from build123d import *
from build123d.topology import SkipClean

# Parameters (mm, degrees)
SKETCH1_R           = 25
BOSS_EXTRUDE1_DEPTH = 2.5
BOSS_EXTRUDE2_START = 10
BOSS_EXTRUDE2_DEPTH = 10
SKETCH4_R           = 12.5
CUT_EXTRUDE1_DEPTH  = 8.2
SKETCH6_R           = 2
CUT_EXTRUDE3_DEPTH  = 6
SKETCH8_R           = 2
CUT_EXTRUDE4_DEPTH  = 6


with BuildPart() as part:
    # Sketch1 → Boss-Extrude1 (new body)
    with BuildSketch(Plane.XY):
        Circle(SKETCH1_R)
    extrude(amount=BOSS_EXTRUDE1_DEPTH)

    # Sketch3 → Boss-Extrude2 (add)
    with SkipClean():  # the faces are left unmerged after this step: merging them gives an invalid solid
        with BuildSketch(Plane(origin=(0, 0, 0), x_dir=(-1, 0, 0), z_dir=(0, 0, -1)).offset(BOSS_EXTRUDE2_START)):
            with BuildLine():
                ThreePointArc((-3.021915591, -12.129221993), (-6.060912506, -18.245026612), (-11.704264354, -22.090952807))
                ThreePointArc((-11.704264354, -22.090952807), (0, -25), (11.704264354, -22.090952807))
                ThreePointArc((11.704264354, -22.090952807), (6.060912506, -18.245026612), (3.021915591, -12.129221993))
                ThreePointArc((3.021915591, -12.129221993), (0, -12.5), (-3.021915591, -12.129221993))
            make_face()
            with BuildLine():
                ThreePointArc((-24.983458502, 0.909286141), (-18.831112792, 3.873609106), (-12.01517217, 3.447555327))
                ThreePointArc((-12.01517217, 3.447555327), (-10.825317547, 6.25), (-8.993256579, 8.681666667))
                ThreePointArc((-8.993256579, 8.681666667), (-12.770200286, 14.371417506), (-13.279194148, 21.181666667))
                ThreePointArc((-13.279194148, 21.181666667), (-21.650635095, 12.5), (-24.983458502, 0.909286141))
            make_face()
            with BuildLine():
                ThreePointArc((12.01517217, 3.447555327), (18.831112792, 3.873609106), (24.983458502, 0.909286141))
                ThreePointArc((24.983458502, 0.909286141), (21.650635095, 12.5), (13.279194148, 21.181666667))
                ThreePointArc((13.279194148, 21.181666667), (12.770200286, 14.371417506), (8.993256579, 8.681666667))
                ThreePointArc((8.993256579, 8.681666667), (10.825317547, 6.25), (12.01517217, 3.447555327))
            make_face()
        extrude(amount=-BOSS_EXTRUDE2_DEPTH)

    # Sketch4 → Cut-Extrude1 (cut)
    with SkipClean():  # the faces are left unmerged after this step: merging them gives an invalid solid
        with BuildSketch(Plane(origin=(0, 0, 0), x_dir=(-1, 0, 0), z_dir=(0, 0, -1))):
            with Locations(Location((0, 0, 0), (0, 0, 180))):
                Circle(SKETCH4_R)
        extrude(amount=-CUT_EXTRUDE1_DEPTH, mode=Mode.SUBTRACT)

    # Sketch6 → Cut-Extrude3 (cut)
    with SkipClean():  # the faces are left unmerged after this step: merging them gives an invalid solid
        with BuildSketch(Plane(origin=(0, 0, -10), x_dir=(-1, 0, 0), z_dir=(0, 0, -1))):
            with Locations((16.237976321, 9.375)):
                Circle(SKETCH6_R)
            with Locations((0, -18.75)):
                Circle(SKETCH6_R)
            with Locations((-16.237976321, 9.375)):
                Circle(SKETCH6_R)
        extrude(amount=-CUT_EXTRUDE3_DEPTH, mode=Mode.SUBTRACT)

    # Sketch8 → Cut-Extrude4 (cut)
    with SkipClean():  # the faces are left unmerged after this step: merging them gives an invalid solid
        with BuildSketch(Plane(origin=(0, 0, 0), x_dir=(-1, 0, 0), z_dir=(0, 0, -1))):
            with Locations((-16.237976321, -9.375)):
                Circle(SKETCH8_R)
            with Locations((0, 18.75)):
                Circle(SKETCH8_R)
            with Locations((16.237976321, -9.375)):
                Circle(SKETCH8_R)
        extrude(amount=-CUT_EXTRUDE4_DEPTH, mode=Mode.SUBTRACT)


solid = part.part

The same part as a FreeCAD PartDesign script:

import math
import FreeCAD as App
import Part
import Sketcher
from FreeCAD import Vector
Q = App.Units.Quantity

doc = App.newDocument("Part")
params = doc.addObject("Spreadsheet::Sheet", "Params")
for row, (alias, value) in enumerate([
    ("sketch1_diameter", "50 mm"),
    ("pad1_length", "2.5 mm"),
    ("sketch2_radius", "25 mm"),
    ("sketch2_radius2", "13.5 mm"),
    ("sketch2_radius3", "12.5 mm"),
    ("pad2_length", "10 mm"),
    ("sketch3_diameter", "25 mm"),
    ("pocket1_length", "8.2 mm"),
    ("sketch4_diameter", "4 mm"),
    ("pocket2_length", "6 mm"),
    ("sketch5_diameter", "4 mm"),
    ("pocket3_length", "6 mm"),
], start=1):
    params.set(f"A{row}", alias)
    params.set(f"B{row}", "=" + value)
    params.setAlias(f"B{row}", alias)

body = doc.addObject("PartDesign::Body", "Body")

# Sketch on XY plane
sketch1 = body.newObject("Sketcher::SketchObject", "Sketch")
sketch1.AttachmentSupport = (doc.getObject("XY_Plane"), [""])
sketch1.MapMode = "FlatFace"
sketch1.addGeometry(Part.Circle(Vector(0, 0, 0), Vector(0, 0, 1), 25), False)
sketch1.addConstraint([
    Sketcher.Constraint("Coincident", 0, 3, -1, 1),
    Sketcher.Constraint("Diameter", 0, Q("50 mm")),
])
sketch1.setExpression("Constraints[1]", "Params.sketch1_diameter")
pad1 = body.newObject("PartDesign::Pad", "Pad")
pad1.Profile = sketch1
pad1.setExpression("Length", "Params.pad1_length")

# Sketch on XY plane
sketch2 = body.newObject("Sketcher::SketchObject", "Sketch001")
sketch2.AttachmentSupport = (doc.getObject("XY_Plane"), [""])
sketch2.MapMode = "FlatFace"
sketch2.AttachmentOffset = App.Placement(Vector(0, 0, -10), App.Rotation())
sketch2.addGeometry([
    Part.ArcOfCircle(Part.Circle(Vector(16, -9, 0), Vector(0, 0, 1), 14), math.radians(-168), math.radians(-110)),  # 0
    Part.ArcOfCircle(Part.Circle(Vector(0, 0, 0), Vector(0, 0, 1), 25), math.radians(-118), math.radians(-62)),  # 1
    Part.ArcOfCircle(Part.Circle(Vector(-16, -9, 0), Vector(0, 0, 1), 14), math.radians(-70), math.radians(-12)),  # 2
    Part.ArcOfCircle(Part.Circle(Vector(0, 0, 0), Vector(0, 0, 1), 12), math.radians(-104), math.radians(-76)),  # 3
    Part.ArcOfCircle(Part.Circle(Vector(16, -9, 0), Vector(0, 0, 1), 14), math.radians(50), math.radians(108)),  # 4
    Part.ArcOfCircle(Part.Circle(Vector(0, 0, 0), Vector(0, 0, 1), 13), math.radians(16), math.radians(44)),  # 5
    Part.ArcOfCircle(Part.Circle(Vector(0, 19, 0), Vector(0, 0, 1), 14), math.radians(-48), math.radians(10)),  # 6
    Part.ArcOfCircle(Part.Circle(Vector(0, 0, 0), Vector(0, 0, 1), 25), math.radians(2), math.radians(58)),  # 7
    Part.ArcOfCircle(Part.Circle(Vector(-16, -9, 0), Vector(0, 0, 1), 14), math.radians(72), math.radians(130)),  # 8
    Part.ArcOfCircle(Part.Circle(Vector(0, 0, 0), Vector(0, 0, 1), 25), math.radians(122), math.radians(178)),  # 9
    Part.ArcOfCircle(Part.Circle(Vector(0, 19, 0), Vector(0, 0, 1), 14), math.radians(170), math.radians(228)),  # 10
    Part.ArcOfCircle(Part.Circle(Vector(0, 0, 0), Vector(0, 0, 1), 13), math.radians(136), math.radians(164)),  # 11
], False)
sketch2.addConstraint([
    Sketcher.Constraint("Coincident", 0, 2, 1, 2),
    Sketcher.Constraint("Coincident", 1, 1, 2, 1),
    Sketcher.Constraint("Coincident", 2, 2, 3, 1),
    Sketcher.Constraint("Coincident", 3, 2, 0, 1),
    Sketcher.Constraint("Coincident", 4, 2, 5, 1),
    Sketcher.Constraint("Coincident", 5, 2, 6, 1),
    Sketcher.Constraint("Coincident", 6, 2, 7, 2),
    Sketcher.Constraint("Coincident", 7, 1, 4, 1),
    Sketcher.Constraint("Coincident", 8, 2, 9, 2),
    Sketcher.Constraint("Coincident", 9, 1, 10, 1),
    Sketcher.Constraint("Coincident", 10, 2, 11, 1),
    Sketcher.Constraint("Coincident", 11, 2, 8, 1),
    Sketcher.Constraint("Coincident", 1, 3, -1, 1),
    Sketcher.Constraint("Coincident", 3, 3, -1, 1),
    Sketcher.Constraint("Coincident", 5, 3, -1, 1),
    Sketcher.Constraint("Coincident", 7, 3, -1, 1),
    Sketcher.Constraint("Coincident", 9, 3, -1, 1),
    Sketcher.Constraint("Coincident", 11, 3, -1, 1),
    Sketcher.Constraint("Coincident", 4, 3, 0, 3),
    Sketcher.Constraint("Coincident", 8, 3, 2, 3),
    Sketcher.Constraint("Coincident", 10, 3, 6, 3),
    Sketcher.Constraint("Equal", 0, 2),
    Sketcher.Constraint("Equal", 2, 4),
    Sketcher.Constraint("Equal", 3, 5),
    Sketcher.Constraint("Equal", 4, 6),
    Sketcher.Constraint("Equal", 1, 7),
    Sketcher.Constraint("Equal", 6, 8),
    Sketcher.Constraint("Equal", 7, 9),
    Sketcher.Constraint("Equal", 8, 10),
    Sketcher.Constraint("Equal", 5, 11),
    Sketcher.Constraint("Symmetric", 0, 3, 2, 3, -2),
    Sketcher.Constraint("PointOnObject", 6, 3, -2),
    Sketcher.Constraint("Radius", 1, Q("25 mm")),
    Sketcher.Constraint("Radius", 0, Q("13.5 mm")),
    Sketcher.Constraint("Radius", 3, Q("12.5 mm")),
    Sketcher.Constraint("DistanceY", 5, 2, 6, 2, Q("12.5 mm")),
    Sketcher.Constraint("DistanceY", 0, 3, -1, 1, Q("9.375 mm")),
    Sketcher.Constraint("DistanceY", 2, 2, -1, 1, Q("12.129222 mm")),
])
sketch2.setExpression("Constraints[32]", "Params.sketch2_radius")
sketch2.setExpression("Constraints[33]", "Params.sketch2_radius2")
sketch2.setExpression("Constraints[34]", "Params.sketch2_radius3")
pad2 = body.newObject("PartDesign::Pad", "Pad001")
pad2.Profile = sketch2
pad2.setExpression("Length", "Params.pad2_length")

# Sketch on XY plane
sketch3 = body.newObject("Sketcher::SketchObject", "Sketch002")
sketch3.AttachmentSupport = (doc.getObject("XY_Plane"), [""])
sketch3.MapMode = "FlatFace"
sketch3.addGeometry(Part.Circle(Vector(0, 0, 0), Vector(0, 0, 1), 12), False)
sketch3.addConstraint([
    Sketcher.Constraint("Coincident", 0, 3, -1, 1),
    Sketcher.Constraint("Diameter", 0, Q("25 mm")),
])
sketch3.setExpression("Constraints[1]", "Params.sketch3_diameter")
pocket1 = body.newObject("PartDesign::Pocket", "Pocket")
pocket1.Profile = sketch3
pocket1.setExpression("Length", "Params.pocket1_length")
pocket1.Reversed = True

# Sketch on XY plane
sketch4 = body.newObject("Sketcher::SketchObject", "Sketch003")
sketch4.AttachmentSupport = (doc.getObject("XY_Plane"), [""])
sketch4.MapMode = "FlatFace"
sketch4.AttachmentOffset = App.Placement(Vector(0, 0, -10), App.Rotation())
sketch4.addGeometry([
    Part.Circle(Vector(-16.2, 9.4, 0), Vector(0, 0, 1), 2),
    Part.Circle(Vector(0, -18.8, 0), Vector(0, 0, 1), 2),
    Part.Circle(Vector(16.2, 9.4, 0), Vector(0, 0, 1), 2),
], False)
sketch4.addConstraint([
    Sketcher.Constraint("Equal", 0, 1),
    Sketcher.Constraint("Equal", 1, 2),
    Sketcher.Constraint("Symmetric", 0, 3, 2, 3, -2),
    Sketcher.Constraint("PointOnObject", 1, 3, -2),
    Sketcher.Constraint("Diameter", 0, Q("4 mm")),
    Sketcher.Constraint("DistanceY", 1, 3, -1, 1, Q("18.75 mm")),
    Sketcher.Constraint("DistanceY", -1, 1, 0, 3, Q("9.375 mm")),
    Sketcher.Constraint("DistanceX", 0, 3, -1, 1, Q("16.237976 mm")),
])
sketch4.setExpression("Constraints[4]", "Params.sketch4_diameter")
pocket2 = body.newObject("PartDesign::Pocket", "Pocket001")
pocket2.Profile = sketch4
pocket2.setExpression("Length", "Params.pocket2_length")
pocket2.Reversed = True

# Sketch on XY plane
sketch5 = body.newObject("Sketcher::SketchObject", "Sketch004")
sketch5.AttachmentSupport = (doc.getObject("XY_Plane"), [""])
sketch5.MapMode = "FlatFace"
sketch5.addGeometry([
    Part.Circle(Vector(16.2, -9.4, 0), Vector(0, 0, 1), 2),
    Part.Circle(Vector(0, 18.8, 0), Vector(0, 0, 1), 2),
    Part.Circle(Vector(-16.2, -9.4, 0), Vector(0, 0, 1), 2),
], False)
sketch5.addConstraint([
    Sketcher.Constraint("Equal", 0, 1),
    Sketcher.Constraint("Equal", 1, 2),
    Sketcher.Constraint("Symmetric", 0, 3, 2, 3, -2),
    Sketcher.Constraint("PointOnObject", 1, 3, -2),
    Sketcher.Constraint("Diameter", 0, Q("4 mm")),
    Sketcher.Constraint("DistanceY", -1, 1, 1, 3, Q("18.75 mm")),
    Sketcher.Constraint("DistanceY", 0, 3, -1, 1, Q("9.375 mm")),
    Sketcher.Constraint("DistanceX", -1, 1, 0, 3, Q("16.237976 mm")),
])
sketch5.setExpression("Constraints[4]", "Params.sketch5_diameter")
pocket3 = body.newObject("PartDesign::Pocket", "Pocket002")
pocket3.Profile = sketch5
pocket3.setExpression("Length", "Params.pocket3_length")
pocket3.Reversed = True

doc.recompute()
